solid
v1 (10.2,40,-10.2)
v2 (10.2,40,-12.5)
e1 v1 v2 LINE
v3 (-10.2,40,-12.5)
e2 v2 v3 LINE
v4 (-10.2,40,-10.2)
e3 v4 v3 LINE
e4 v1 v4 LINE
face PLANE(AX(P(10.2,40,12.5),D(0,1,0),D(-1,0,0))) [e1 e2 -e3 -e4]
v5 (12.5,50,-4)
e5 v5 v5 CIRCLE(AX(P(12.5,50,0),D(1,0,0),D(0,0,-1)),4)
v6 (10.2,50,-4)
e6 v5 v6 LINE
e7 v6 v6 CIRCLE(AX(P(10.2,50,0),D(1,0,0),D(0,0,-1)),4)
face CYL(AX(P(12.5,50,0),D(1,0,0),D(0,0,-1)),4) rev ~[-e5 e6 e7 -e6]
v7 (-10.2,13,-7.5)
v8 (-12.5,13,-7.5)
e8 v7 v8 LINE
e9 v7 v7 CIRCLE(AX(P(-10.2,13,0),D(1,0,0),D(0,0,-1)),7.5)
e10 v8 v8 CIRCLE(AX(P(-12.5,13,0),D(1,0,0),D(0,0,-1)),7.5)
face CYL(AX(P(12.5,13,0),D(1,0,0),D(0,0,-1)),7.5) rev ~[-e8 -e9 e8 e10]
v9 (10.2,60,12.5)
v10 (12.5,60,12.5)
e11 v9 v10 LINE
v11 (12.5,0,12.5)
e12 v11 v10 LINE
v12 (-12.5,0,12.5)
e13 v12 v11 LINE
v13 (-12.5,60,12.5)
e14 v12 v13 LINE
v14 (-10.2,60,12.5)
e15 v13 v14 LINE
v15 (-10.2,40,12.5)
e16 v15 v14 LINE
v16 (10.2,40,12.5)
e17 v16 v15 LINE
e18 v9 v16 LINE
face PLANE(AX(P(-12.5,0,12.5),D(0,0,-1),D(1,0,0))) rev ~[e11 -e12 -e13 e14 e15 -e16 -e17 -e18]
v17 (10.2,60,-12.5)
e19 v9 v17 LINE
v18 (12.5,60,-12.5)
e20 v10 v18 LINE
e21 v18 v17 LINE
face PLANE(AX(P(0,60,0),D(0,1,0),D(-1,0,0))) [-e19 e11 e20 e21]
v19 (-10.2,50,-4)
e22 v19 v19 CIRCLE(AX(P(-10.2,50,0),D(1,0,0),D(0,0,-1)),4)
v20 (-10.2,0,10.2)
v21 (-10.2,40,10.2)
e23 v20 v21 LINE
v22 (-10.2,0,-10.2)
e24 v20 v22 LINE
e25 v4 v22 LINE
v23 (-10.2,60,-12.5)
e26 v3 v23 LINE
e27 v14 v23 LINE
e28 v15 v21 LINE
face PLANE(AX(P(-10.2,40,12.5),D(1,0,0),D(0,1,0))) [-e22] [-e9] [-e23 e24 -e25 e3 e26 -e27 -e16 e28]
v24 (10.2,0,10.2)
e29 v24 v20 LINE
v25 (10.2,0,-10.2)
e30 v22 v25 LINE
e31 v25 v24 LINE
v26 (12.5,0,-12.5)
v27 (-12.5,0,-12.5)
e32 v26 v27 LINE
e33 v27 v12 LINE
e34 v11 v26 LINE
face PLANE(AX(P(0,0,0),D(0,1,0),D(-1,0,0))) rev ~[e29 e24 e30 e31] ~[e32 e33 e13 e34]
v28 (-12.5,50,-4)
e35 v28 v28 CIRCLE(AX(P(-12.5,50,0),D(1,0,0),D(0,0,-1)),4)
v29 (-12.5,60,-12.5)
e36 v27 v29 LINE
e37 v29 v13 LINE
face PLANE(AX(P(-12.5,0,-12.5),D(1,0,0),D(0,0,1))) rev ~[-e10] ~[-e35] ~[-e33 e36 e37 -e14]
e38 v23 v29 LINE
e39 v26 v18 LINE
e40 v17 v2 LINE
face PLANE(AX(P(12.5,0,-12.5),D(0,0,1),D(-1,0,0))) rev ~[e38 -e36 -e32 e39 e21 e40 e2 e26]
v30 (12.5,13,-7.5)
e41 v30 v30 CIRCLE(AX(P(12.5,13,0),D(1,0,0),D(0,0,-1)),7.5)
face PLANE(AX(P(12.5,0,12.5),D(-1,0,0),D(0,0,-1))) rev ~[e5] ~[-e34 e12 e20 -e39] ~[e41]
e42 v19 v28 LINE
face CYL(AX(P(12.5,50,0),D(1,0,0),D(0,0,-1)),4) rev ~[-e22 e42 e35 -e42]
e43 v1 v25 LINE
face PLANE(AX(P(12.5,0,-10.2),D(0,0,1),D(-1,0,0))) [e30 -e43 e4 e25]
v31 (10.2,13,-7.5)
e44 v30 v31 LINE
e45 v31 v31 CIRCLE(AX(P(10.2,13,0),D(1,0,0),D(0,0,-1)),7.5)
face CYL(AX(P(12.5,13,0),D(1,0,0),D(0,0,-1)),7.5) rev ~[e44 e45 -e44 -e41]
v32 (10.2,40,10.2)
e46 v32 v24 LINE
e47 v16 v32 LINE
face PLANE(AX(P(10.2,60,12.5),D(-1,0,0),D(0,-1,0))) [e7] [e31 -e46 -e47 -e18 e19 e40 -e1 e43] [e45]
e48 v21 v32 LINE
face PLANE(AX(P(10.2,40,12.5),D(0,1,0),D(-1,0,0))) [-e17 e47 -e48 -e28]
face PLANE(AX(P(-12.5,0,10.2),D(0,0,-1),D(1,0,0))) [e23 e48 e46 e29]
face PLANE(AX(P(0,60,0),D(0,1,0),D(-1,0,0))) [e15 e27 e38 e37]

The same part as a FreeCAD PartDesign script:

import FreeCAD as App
import Part
import Sketcher

V = App.Vector


def faces_at(feature, points):
    """Names of the faces that lie closest to the given points."""
    faces = feature.Shape.Faces
    near = lambda p: min(range(len(faces)), key=lambda i: faces[i].distToShape(Part.Vertex(*p))[0])
    return sorted({f"Face{near(p) + 1}" for p in points})


def add_polygon(sketch, points):
    """Adds a closed chain of lines whose ends are joined by coincident constraints."""
    first, n = sketch.GeometryCount, len(points)
    for a, b in zip(points, points[1:] + points[:1]):
        sketch.addGeometry(Part.LineSegment(App.Vector(*a, 0), App.Vector(*b, 0)), False)
    for i in range(n):
        sketch.addConstraint(Sketcher.Constraint("Coincident", first + i, 2, first + (i + 1) % n, 1))

doc = App.newDocument("Part")
body = doc.addObject("PartDesign::Body", "Body")

sketch1 = body.newObject("Sketcher::SketchObject", "Sketch")
sketch1.AttachmentSupport = (doc.getObject("XZ_Plane"), [""])
sketch1.MapMode = "FlatFace"
add_polygon(sketch1, [(-12, -12), (-12, 12), (12, 12), (12, -12)])
sketch1.addConstraint([
    Sketcher.Constraint("Vertical", 0),
    Sketcher.Constraint("Horizontal", 1),
    Sketcher.Constraint("Vertical", 2),
    Sketcher.Constraint("Horizontal", 3),
    Sketcher.Constraint("Symmetric", 0, 2, 2, 2, -1, 1),
    Sketcher.Constraint("Equal", 3, 0),
    Sketcher.Constraint("DistanceX", 1, 1, 1, 2, 25.0),
])
pad1 = body.newObject("PartDesign::Pad", "Pad")
pad1.Profile = sketch1
pad1.Length = 60
pad1.Reversed = True
doc.recompute()

thickness = body.newObject("PartDesign::Thickness", "Thickness")
thickness.Base = (pad1, faces_at(pad1, [(4.167, 0, -4.167), (4.167, 60, -4.167)]))
thickness.Value = 2.3
thickness.Reversed = True
thickness.Join = "Intersection"

sketch2 = body.newObject("Sketcher::SketchObject", "Sketch001")
sketch2.AttachmentSupport = (doc.getObject("YZ_Plane"), [""])
sketch2.MapMode = "FlatFace"
sketch2.AttachmentOffset = App.Placement(V(0, 0, 12.5), App.Rotation())
sketch2.addGeometry(Part.Circle(V(13, 0, 0), V(0, 0, 1), 8), False)
sketch2.addConstraint([
    Sketcher.Constraint("PointOnObject", 0, 3, -1),
    Sketcher.Constraint("Diameter", 0, 15.0),
    Sketcher.Constraint("DistanceX", -1, 1, 0, 3, 13.0),
])
pocket1 = body.newObject("PartDesign::Pocket", "Pocket")
pocket1.Profile = sketch2
pocket1.Type = "ThroughAll"

sketch3 = body.newObject("Sketcher::SketchObject", "Sketch002")
sketch3.AttachmentSupport = (doc.getObject("XY_Plane"), [""])
sketch3.MapMode = "FlatFace"
sketch3.AttachmentOffset = App.Placement(V(0, 0, 12.5), App.Rotation())
add_polygon(sketch3, [(10, 60), (-10, 60), (-10, 40), (10, 40)])
sketch3.addConstraint([
    Sketcher.Constraint("Horizontal", 0),
    Sketcher.Constraint("Vertical", 1),
    Sketcher.Constraint("Horizontal", 2),
    Sketcher.Constraint("Vertical", 3),
    Sketcher.Constraint("DistanceY", 1, 2, 1, 1, 20.0),
    Sketcher.Constraint("DistanceX", 0, 2, 0, 1, 20.4),
    Sketcher.Constraint("DistanceY", -1, 1, 0, 2, 60.0),
    Sketcher.Constraint("DistanceX", 0, 2, -1, 1, 10.2),
])
pocket2 = body.newObject("PartDesign::Pocket", "Pocket001")
pocket2.Profile = sketch3
pocket2.Type = "ThroughAll"

sketch4 = body.newObject("Sketcher::SketchObject", "Sketch003")
sketch4.AttachmentSupport = (doc.getObject("YZ_Plane"), [""])
sketch4.MapMode = "FlatFace"
sketch4.AttachmentOffset = App.Placement(V(0, 0, 12.5), App.Rotation())
sketch4.addGeometry(Part.Circle(V(50, 0, 0), V(0, 0, 1), 4), False)
sketch4.addConstraint([
    Sketcher.Constraint("PointOnObject", 0, 3, -1),
    Sketcher.Constraint("Diameter", 0, 8.0),
    Sketcher.Constraint("DistanceX", -1, 1, 0, 3, 50.0),
])
pocket3 = body.newObject("PartDesign::Pocket", "Pocket002")
pocket3.Profile = sketch4
pocket3.Type = "ThroughAll"

doc.recompute()
